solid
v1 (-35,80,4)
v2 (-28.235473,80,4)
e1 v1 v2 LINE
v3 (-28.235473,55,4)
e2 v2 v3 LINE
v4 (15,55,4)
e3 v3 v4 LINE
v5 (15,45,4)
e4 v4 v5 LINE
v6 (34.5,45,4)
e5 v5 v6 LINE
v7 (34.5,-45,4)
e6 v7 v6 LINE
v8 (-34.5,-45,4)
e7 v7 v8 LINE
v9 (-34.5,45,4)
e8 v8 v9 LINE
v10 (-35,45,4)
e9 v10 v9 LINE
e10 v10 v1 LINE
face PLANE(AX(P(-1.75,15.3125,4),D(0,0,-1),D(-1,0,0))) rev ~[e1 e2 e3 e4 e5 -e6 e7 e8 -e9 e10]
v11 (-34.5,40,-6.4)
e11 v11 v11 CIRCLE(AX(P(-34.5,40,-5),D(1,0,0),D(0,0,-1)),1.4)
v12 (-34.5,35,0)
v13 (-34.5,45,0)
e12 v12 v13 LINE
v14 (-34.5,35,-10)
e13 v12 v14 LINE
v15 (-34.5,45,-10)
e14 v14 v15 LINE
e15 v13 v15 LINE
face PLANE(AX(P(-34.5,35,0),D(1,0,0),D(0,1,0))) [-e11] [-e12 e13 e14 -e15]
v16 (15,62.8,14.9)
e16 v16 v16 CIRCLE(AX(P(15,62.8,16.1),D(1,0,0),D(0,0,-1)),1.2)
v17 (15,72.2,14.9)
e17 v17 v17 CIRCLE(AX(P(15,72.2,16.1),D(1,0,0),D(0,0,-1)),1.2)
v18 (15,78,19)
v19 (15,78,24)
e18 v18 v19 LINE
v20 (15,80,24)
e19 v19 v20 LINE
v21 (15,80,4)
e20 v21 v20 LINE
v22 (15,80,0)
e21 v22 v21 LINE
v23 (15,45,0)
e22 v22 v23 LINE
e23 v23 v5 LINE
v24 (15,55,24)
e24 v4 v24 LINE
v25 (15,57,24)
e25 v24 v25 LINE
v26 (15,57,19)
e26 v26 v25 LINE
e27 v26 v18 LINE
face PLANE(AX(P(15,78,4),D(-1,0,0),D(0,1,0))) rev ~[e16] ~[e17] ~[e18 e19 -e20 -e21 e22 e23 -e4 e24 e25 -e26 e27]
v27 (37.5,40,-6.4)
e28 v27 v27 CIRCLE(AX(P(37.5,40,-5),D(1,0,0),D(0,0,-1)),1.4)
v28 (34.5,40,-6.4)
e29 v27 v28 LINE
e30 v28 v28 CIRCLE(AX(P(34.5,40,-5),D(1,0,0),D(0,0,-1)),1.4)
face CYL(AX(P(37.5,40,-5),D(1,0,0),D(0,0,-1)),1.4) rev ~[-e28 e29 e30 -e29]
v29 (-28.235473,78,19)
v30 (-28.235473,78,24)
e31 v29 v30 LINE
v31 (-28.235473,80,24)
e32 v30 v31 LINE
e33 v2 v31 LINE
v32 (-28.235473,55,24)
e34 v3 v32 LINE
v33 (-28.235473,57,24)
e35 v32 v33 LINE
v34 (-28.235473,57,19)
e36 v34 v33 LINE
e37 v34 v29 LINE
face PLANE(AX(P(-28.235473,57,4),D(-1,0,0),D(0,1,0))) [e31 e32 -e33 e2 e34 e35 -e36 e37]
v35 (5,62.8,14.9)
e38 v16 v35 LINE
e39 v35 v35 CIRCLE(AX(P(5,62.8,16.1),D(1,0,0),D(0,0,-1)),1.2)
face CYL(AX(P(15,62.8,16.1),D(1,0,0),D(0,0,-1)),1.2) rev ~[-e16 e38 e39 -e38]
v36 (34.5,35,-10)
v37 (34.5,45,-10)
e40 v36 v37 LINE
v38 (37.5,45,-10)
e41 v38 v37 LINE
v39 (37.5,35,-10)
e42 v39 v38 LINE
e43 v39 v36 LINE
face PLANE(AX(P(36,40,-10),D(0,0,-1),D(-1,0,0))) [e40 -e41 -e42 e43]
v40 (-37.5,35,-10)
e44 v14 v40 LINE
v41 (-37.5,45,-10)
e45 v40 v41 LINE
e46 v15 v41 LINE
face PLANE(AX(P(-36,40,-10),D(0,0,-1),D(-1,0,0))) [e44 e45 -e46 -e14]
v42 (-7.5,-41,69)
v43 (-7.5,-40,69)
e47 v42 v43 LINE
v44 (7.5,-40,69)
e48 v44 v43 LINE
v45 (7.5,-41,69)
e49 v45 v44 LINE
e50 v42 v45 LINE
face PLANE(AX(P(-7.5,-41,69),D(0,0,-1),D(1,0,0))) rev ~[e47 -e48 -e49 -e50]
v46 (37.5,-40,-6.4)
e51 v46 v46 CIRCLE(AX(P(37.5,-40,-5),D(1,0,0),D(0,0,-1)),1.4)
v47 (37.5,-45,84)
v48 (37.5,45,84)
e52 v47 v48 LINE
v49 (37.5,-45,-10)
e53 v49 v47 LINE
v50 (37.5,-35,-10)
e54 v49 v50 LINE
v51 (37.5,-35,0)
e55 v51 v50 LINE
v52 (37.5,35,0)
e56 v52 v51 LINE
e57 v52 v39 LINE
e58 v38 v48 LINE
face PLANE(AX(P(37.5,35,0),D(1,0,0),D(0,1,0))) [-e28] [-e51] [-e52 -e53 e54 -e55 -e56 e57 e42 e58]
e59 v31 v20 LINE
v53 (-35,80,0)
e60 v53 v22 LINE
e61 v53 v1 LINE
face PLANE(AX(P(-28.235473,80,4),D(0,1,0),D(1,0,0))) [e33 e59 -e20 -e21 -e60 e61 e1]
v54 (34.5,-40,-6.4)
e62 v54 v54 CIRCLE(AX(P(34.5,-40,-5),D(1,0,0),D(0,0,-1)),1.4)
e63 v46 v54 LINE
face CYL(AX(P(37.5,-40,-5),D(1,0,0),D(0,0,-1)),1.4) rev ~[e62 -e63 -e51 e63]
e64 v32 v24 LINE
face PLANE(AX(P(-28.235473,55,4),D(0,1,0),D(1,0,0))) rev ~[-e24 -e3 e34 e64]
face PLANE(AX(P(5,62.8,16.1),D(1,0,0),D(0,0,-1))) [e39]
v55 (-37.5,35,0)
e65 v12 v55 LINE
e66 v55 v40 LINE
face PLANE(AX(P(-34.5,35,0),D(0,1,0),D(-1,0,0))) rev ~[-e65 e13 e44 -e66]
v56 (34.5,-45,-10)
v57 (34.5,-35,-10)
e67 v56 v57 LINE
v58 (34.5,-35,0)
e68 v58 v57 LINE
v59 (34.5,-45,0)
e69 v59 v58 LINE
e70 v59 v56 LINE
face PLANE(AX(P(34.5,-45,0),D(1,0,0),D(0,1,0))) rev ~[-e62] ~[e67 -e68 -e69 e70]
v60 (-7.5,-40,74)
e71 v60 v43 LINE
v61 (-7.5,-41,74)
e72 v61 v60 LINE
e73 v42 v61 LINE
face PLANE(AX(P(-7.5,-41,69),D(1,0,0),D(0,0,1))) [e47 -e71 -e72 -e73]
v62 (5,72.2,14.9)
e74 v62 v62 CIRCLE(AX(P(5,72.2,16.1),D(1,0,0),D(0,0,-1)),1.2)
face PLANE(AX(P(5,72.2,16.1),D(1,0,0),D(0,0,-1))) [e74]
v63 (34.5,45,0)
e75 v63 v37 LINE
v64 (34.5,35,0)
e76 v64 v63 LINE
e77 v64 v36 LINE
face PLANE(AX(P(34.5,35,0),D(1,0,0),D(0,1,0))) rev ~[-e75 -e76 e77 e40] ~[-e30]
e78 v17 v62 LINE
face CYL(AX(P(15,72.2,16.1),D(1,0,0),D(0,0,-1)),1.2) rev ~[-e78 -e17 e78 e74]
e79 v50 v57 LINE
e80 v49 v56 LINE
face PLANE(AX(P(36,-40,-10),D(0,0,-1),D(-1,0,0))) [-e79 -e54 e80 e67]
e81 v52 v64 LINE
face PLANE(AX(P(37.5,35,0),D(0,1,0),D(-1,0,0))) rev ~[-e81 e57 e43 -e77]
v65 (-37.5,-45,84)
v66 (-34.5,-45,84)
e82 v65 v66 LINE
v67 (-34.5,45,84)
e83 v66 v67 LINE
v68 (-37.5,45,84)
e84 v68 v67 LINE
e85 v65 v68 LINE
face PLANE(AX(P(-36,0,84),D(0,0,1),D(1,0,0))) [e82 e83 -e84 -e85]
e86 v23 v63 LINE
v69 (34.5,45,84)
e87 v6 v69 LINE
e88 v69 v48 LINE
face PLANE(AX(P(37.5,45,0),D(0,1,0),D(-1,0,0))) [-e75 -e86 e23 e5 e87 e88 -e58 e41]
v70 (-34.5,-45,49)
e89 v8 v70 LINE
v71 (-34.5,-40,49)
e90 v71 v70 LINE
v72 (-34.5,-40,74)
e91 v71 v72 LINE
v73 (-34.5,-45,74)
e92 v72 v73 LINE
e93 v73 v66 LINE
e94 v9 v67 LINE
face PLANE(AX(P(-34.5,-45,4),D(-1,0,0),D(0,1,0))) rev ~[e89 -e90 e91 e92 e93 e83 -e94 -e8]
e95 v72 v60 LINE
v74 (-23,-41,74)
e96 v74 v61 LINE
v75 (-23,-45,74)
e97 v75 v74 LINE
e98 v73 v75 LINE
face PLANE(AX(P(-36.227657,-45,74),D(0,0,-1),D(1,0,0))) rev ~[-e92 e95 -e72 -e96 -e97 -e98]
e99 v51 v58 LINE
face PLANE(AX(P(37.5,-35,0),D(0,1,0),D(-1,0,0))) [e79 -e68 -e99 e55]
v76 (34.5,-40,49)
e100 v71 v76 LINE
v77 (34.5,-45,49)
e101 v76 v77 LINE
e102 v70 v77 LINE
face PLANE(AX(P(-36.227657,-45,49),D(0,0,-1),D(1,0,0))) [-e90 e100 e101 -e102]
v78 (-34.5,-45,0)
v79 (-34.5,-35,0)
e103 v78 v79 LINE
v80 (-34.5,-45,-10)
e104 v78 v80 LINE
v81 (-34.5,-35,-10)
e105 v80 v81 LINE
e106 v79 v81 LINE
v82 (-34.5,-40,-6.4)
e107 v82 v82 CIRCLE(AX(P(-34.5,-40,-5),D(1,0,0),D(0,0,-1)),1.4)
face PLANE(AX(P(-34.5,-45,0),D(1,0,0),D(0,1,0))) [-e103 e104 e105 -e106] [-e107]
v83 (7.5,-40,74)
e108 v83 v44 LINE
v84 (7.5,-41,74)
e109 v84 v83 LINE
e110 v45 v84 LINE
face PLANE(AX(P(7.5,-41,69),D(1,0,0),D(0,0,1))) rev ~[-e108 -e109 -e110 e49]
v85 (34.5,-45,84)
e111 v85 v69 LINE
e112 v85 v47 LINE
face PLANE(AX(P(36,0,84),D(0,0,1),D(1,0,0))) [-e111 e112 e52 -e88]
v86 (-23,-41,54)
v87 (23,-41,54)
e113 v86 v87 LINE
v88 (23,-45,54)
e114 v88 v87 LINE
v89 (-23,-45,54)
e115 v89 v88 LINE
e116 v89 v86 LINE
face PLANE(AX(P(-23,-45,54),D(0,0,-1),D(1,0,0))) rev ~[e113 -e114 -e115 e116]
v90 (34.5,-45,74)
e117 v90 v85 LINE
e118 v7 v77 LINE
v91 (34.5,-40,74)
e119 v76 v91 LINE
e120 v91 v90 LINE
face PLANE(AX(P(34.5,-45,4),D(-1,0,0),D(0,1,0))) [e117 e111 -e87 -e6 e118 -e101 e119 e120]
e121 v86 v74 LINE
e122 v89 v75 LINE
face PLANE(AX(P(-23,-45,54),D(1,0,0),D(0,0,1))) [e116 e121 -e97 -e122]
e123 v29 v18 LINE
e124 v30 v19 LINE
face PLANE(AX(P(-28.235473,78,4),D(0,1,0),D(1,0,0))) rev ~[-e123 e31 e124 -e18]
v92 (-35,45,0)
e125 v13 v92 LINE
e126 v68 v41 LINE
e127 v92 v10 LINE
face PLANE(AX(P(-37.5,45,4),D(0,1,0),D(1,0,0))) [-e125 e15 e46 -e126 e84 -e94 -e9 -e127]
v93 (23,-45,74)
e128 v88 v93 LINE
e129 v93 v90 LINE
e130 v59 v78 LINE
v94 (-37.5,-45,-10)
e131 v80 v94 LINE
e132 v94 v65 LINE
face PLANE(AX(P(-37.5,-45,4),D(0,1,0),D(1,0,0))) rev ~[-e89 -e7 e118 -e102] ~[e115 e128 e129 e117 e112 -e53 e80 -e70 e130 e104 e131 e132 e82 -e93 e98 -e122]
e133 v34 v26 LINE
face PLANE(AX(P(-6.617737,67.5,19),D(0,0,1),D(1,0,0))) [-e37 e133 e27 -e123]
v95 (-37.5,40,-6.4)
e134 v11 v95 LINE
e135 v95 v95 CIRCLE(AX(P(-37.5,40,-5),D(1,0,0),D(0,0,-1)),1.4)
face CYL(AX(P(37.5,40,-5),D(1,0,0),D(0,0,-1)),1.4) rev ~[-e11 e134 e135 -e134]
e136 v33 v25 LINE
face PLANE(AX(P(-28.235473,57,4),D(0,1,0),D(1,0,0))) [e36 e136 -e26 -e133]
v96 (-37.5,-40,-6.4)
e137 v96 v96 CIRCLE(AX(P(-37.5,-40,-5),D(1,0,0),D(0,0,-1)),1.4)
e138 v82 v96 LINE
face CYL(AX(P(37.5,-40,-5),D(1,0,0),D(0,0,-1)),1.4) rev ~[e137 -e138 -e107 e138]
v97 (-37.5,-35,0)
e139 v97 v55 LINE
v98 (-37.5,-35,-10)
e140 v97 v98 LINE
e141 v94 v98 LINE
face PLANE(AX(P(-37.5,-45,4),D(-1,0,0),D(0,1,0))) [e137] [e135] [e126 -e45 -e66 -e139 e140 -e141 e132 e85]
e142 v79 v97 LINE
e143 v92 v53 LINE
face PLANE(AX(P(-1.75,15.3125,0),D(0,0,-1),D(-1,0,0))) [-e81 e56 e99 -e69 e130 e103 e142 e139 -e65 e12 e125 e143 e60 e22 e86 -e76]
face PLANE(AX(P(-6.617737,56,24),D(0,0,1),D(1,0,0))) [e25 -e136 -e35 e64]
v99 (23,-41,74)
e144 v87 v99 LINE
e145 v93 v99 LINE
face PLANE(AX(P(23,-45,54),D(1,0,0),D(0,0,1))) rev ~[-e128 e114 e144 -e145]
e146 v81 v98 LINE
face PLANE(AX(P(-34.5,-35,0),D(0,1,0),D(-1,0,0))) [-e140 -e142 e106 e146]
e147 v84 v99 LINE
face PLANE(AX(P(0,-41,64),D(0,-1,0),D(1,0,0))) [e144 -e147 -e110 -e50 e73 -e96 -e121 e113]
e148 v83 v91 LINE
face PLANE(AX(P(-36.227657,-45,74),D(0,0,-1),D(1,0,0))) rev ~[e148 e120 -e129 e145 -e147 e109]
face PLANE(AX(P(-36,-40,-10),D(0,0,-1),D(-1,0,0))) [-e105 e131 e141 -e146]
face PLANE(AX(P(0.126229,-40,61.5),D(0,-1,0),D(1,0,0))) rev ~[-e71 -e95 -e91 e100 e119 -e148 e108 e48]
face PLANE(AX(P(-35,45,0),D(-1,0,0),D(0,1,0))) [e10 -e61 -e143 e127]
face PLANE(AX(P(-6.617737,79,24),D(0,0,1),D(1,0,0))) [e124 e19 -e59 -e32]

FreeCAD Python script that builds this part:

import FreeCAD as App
import Part
import Sketcher

V = App.Vector
Q = App.Units.Quantity

doc = App.newDocument("Part")
params = doc.addObject("Spreadsheet::Sheet", "Params")
for row, (alias, value) in enumerate([
    ("sketch1_width", "75 mm"),
    ("sketch1_width2", "50 mm"),
    ("sketch1_height", "90 mm"),
    ("sketch1_height2", "35 mm"),
    ("sketch1_width3", "2.5 mm"),
    ("pad1_length", "4 mm"),
    ("sketch2_height", "2 mm"),
    ("pad2_length", "20 mm"),
    ("sketch3_height", "21 mm"),
    ("pad3_length", "15 mm"),
    ("sketch4_width", "3 mm"),
    ("sketch4_height", "10 mm"),
    ("pad4_length", "10 mm"),
    ("sketch5_diameter", "2.8 mm"),
    ("pocket1_length", "83 mm"),
    ("sketch6_width", "3 mm"),
    ("sketch6_height", "90 mm"),
    ("pad5_length", "80 mm"),
    ("sketch7_height", "25 mm"),
    ("pad6_length", "5 mm"),
    ("sketch8_width", "46 mm"),
    ("sketch8_height", "20 mm"),
    ("pocket2_length", "4 mm"),
    ("sketch9_width", "15 mm"),
    ("sketch9_height", "5 mm"),
    ("sketch10_diameter", "2.4 mm"),
    ("pocket4_length", "10 mm"),
], start=1):
    params.set(f"A{row}", alias)
    params.set(f"B{row}", "=" + value)
    params.setAlias(f"B{row}", alias)

body = doc.addObject("PartDesign::Body", "Body")

# Sketch on XY plane
sketch1 = doc.addObject("Sketcher::SketchObject", "Sketch")
body.addObject(sketch1)
sketch1.AttachmentSupport = (doc.XY_Plane, [""])
sketch1.MapMode = "FlatFace"
sketch1.addGeometry(Part.LineSegment(V(-35, 45, 0), V(-37.5, 45, 0)), False)
sketch1.addGeometry(Part.LineSegment(V(-37.5, 45, 0), V(-37.5, -45, 0)), False)
sketch1.addGeometry(Part.LineSegment(V(-37.5, -45, 0), V(37.5, -45, 0)), False)
sketch1.addGeometry(Part.LineSegment(V(37.5, -45, 0), V(37.5, 45, 0)), False)
sketch1.addGeometry(Part.LineSegment(V(37.5, 45, 0), V(15, 45, 0)), False)
sketch1.addGeometry(Part.LineSegment(V(15, 45, 0), V(15, 80, 0)), False)
sketch1.addGeometry(Part.LineSegment(V(15, 80, 0), V(-35, 80, 0)), False)
sketch1.addGeometry(Part.LineSegment(V(-35, 80, 0), V(-35, 45, 0)), False)
sketch1.addConstraint(Sketcher.Constraint("Coincident", 0, 2, 1, 1))
sketch1.addConstraint(Sketcher.Constraint("Coincident", 1, 2, 2, 1))
sketch1.addConstraint(Sketcher.Constraint("Coincident", 2, 2, 3, 1))
sketch1.addConstraint(Sketcher.Constraint("Coincident", 3, 2, 4, 1))
sketch1.addConstraint(Sketcher.Constraint("Coincident", 4, 2, 5, 1))
sketch1.addConstraint(Sketcher.Constraint("Coincident", 5, 2, 6, 1))
sketch1.addConstraint(Sketcher.Constraint("Coincident", 6, 2, 7, 1))
sketch1.addConstraint(Sketcher.Constraint("Coincident", 7, 2, 0, 1))
sketch1.addConstraint(Sketcher.Constraint("Horizontal", 0))
sketch1.addConstraint(Sketcher.Constraint("Vertical", 1))
sketch1.addConstraint(Sketcher.Constraint("Horizontal", 2))
sketch1.addConstraint(Sketcher.Constraint("Vertical", 3))
sketch1.addConstraint(Sketcher.Constraint("Horizontal", 4))
sketch1.addConstraint(Sketcher.Constraint("Vertical", 5))
sketch1.addConstraint(Sketcher.Constraint("Horizontal", 6))
sketch1.addConstraint(Sketcher.Constraint("Vertical", 7))
sketch1.addConstraint(Sketcher.Constraint("Symmetric", 0, 2, 2, 2, -1, 1))
sketch1.addConstraint(Sketcher.Constraint("Horizontal", 0, 2, 3, 2))
sketch1.addConstraint(Sketcher.Constraint("DistanceX", 2, 1, 2, 2, Q("75 mm")))
sketch1.addConstraint(Sketcher.Constraint("DistanceX", 6, 2, 6, 1, Q("50 mm")))
sketch1.addConstraint(Sketcher.Constraint("DistanceY", 1, 2, 1, 1, Q("90 mm")))
sketch1.addConstraint(Sketcher.Constraint("DistanceY", 5, 1, 5, 2, Q("35 mm")))
sketch1.addConstraint(Sketcher.Constraint("DistanceX", 0, 2, 0, 1, Q("2.5 mm")))
sketch1.setExpression("Constraints[18]", "Params.sketch1_width")
sketch1.setExpression("Constraints[19]", "Params.sketch1_width2")
sketch1.setExpression("Constraints[20]", "Params.sketch1_height")
sketch1.setExpression("Constraints[21]", "Params.sketch1_height2")
sketch1.setExpression("Constraints[22]", "Params.sketch1_width3")
pad1 = doc.addObject("PartDesign::Pad", "Pad")
body.addObject(pad1)
pad1.Profile = sketch1
pad1.setExpression("Length", "Params.pad1_length")

# Sketch on XY plane
sketch2 = doc.addObject("Sketcher::SketchObject", "Sketch001")
body.addObject(sketch2)
sketch2.AttachmentSupport = (doc.XY_Plane, [""])
sketch2.MapMode = "FlatFace"
sketch2.AttachmentOffset = App.Placement(V(0, 0, 4), App.Rotation())
sketch2.addGeometry(Part.LineSegment(V(-28.235473, 57, 0), V(-28.235473, 55, 0)), False)
sketch2.addGeometry(Part.LineSegment(V(-28.235473, 55, 0), V(15, 55, 0)), False)
sketch2.addGeometry(Part.LineSegment(V(15, 55, 0), V(15, 57, 0)), False)
sketch2.addGeometry(Part.LineSegment(V(15, 57, 0), V(-28.235473, 57, 0)), False)
sketch2.addGeometry(Part.LineSegment(V(-28.235473, 80, 0), V(-28.235473, 78, 0)), False)
sketch2.addGeometry(Part.LineSegment(V(-28.235473, 78, 0), V(15, 78, 0)), False)
sketch2.addGeometry(Part.LineSegment(V(15, 78, 0), V(15, 80, 0)), False)
sketch2.addGeometry(Part.LineSegment(V(15, 80, 0), V(-28.235473, 80, 0)), False)
sketch2.addConstraint(Sketcher.Constraint("Coincident", 0, 2, 1, 1))
sketch2.addConstraint(Sketcher.Constraint("Coincident", 1, 2, 2, 1))
sketch2.addConstraint(Sketcher.Constraint("Coincident", 2, 2, 3, 1))
sketch2.addConstraint(Sketcher.Constraint("Coincident", 3, 2, 0, 1))
sketch2.addConstraint(Sketcher.Constraint("Coincident", 4, 2, 5, 1))
sketch2.addConstraint(Sketcher.Constraint("Coincident", 5, 2, 6, 1))
sketch2.addConstraint(Sketcher.Constraint("Coincident", 6, 2, 7, 1))
sketch2.addConstraint(Sketcher.Constraint("Coincident", 7, 2, 4, 1))
sketch2.addConstraint(Sketcher.Constraint("Vertical", 0))
sketch2.addConstraint(Sketcher.Constraint("Horizontal", 1))
sketch2.addConstraint(Sketcher.Constraint("Vertical", 2))
sketch2.addConstraint(Sketcher.Constraint("Horizontal", 3))
sketch2.addConstraint(Sketcher.Constraint("Vertical", 4))
sketch2.addConstraint(Sketcher.Constraint("Horizontal", 5))
sketch2.addConstraint(Sketcher.Constraint("Vertical", 6))
sketch2.addConstraint(Sketcher.Constraint("Horizontal", 7))
sketch2.addConstraint(Sketcher.Constraint("Vertical", 3, 2, 4, 2))
sketch2.addConstraint(Sketcher.Constraint("Vertical", 2, 2, 5, 2))
sketch2.addConstraint(Sketcher.Constraint("Equal", 2, 4))
sketch2.addConstraint(Sketcher.Constraint("DistanceY", 0, 2, 0, 1, Q("2 mm")))
sketch2.addConstraint(Sketcher.Constraint("DistanceY", -1, 1, 0, 2, Q("55 mm")))
sketch2.addConstraint(Sketcher.Constraint("DistanceX", -1, 1, 1, 2, Q("15 mm")))
sketch2.addConstraint(Sketcher.Constraint("DistanceY", -1, 1, 4, 2, Q("78 mm")))
sketch2.addConstraint(Sketcher.Constraint("DistanceX", 1, 1, 1, 2, Q("43.235473 mm")))
sketch2.setExpression("Constraints[19]", "Params.sketch2_height")
pad2 = doc.addObject("PartDesign::Pad", "Pad001")
body.addObject(pad2)
pad2.Profile = sketch2
pad2.setExpression("Length", "Params.pad2_length")

# Sketch on XY plane
sketch3 = doc.addObject("Sketcher::SketchObject", "Sketch002")
body.addObject(sketch3)
sketch3.AttachmentSupport = (doc.XY_Plane, [""])
sketch3.MapMode = "FlatFace"
sketch3.AttachmentOffset = App.Placement(V(0, 0, 4), App.Rotation())
sketch3.addGeometry(Part.LineSegment(V(-28.235473, 78, 0), V(-28.235473, 57, 0)), False)
sketch3.addGeometry(Part.LineSegment(V(-28.235473, 57, 0), V(15, 57, 0)), False)
sketch3.addGeometry(Part.LineSegment(V(15, 57, 0), V(15, 78, 0)), False)
sketch3.addGeometry(Part.LineSegment(V(15, 78, 0), V(-28.235473, 78, 0)), False)
sketch3.addConstraint(Sketcher.Constraint("Coincident", 0, 2, 1, 1))
sketch3.addConstraint(Sketcher.Constraint("Coincident", 1, 2, 2, 1))
sketch3.addConstraint(Sketcher.Constraint("Coincident", 2, 2, 3, 1))
sketch3.addConstraint(Sketcher.Constraint("Coincident", 3, 2, 0, 1))
sketch3.addConstraint(Sketcher.Constraint("Vertical", 0))
sketch3.addConstraint(Sketcher.Constraint("Horizontal", 1))
sketch3.addConstraint(Sketcher.Constraint("Vertical", 2))
sketch3.addConstraint(Sketcher.Constraint("Horizontal", 3))
sketch3.addConstraint(Sketcher.Constraint("DistanceY", 0, 2, 0, 1, Q("21 mm")))
sketch3.addConstraint(Sketcher.Constraint("DistanceY", -1, 1, 0, 2, Q("57 mm")))
sketch3.addConstraint(Sketcher.Constraint("DistanceX", -1, 1, 1, 2, Q("15 mm")))
sketch3.addConstraint(Sketcher.Constraint("DistanceX", 1, 1, 1, 2, Q("43.235473 mm")))
sketch3.setExpression("Constraints[8]", "Params.sketch3_height")
pad3 = doc.addObject("PartDesign::Pad", "Pad002")
body.addObject(pad3)
pad3.Profile = sketch3
pad3.setExpression("Length", "Params.pad3_length")

# Sketch on XY plane
sketch4 = doc.addObject("Sketcher::SketchObject", "Sketch003")
body.addObject(sketch4)
sketch4.AttachmentSupport = (doc.XY_Plane, [""])
sketch4.MapMode = "FlatFace"
sketch4.addGeometry(Part.LineSegment(V(37.5, 45, 0), V(37.5, 35, 0)), False)
sketch4.addGeometry(Part.LineSegment(V(37.5, 35, 0), V(34.5, 35, 0)), False)
sketch4.addGeometry(Part.LineSegment(V(34.5, 35, 0), V(34.5, 45, 0)), False)
sketch4.addGeometry(Part.LineSegment(V(34.5, 45, 0), V(37.5, 45, 0)), False)
sketch4.addGeometry(Part.LineSegment(V(-34.5, 45, 0), V(-34.5, 35, 0)), False)
sketch4.addGeometry(Part.LineSegment(V(-34.5, 35, 0), V(-37.5, 35, 0)), False)
sketch4.addGeometry(Part.LineSegment(V(-37.5, 35, 0), V(-37.5, 45, 0)), False)
sketch4.addGeometry(Part.LineSegment(V(-37.5, 45, 0), V(-34.5, 45, 0)), False)
sketch4.addGeometry(Part.LineSegment(V(-34.5, -35, 0), V(-34.5, -45, 0)), False)
sketch4.addGeometry(Part.LineSegment(V(-34.5, -45, 0), V(-37.5, -45, 0)), False)
sketch4.addGeometry(Part.LineSegment(V(-37.5, -45, 0), V(-37.5, -35, 0)), False)
sketch4.addGeometry(Part.LineSegment(V(-37.5, -35, 0), V(-34.5, -35, 0)), False)
sketch4.addGeometry(Part.LineSegment(V(37.5, -35, 0), V(37.5, -45, 0)), False)
sketch4.addGeometry(Part.LineSegment(V(37.5, -45, 0), V(34.5, -45, 0)), False)
sketch4.addGeometry(Part.LineSegment(V(34.5, -45, 0), V(34.5, -35, 0)), False)
sketch4.addGeometry(Part.LineSegment(V(34.5, -35, 0), V(37.5, -35, 0)), False)
sketch4.addConstraint(Sketcher.Constraint("Coincident", 0, 2, 1, 1))
sketch4.addConstraint(Sketcher.Constraint("Coincident", 1, 2, 2, 1))
sketch4.addConstraint(Sketcher.Constraint("Coincident", 2, 2, 3, 1))
sketch4.addConstraint(Sketcher.Constraint("Coincident", 3, 2, 0, 1))
sketch4.addConstraint(Sketcher.Constraint("Coincident", 4, 2, 5, 1))
sketch4.addConstraint(Sketcher.Constraint("Coincident", 5, 2, 6, 1))
sketch4.addConstraint(Sketcher.Constraint("Coincident", 6, 2, 7, 1))
sketch4.addConstraint(Sketcher.Constraint("Coincident", 7, 2, 4, 1))
sketch4.addConstraint(Sketcher.Constraint("Coincident", 8, 2, 9, 1))
sketch4.addConstraint(Sketcher.Constraint("Coincident", 9, 2, 10, 1))
sketch4.addConstraint(Sketcher.Constraint("Coincident", 10, 2, 11, 1))
sketch4.addConstraint(Sketcher.Constraint("Coincident", 11, 2, 8, 1))
sketch4.addConstraint(Sketcher.Constraint("Coincident", 12, 2, 13, 1))
sketch4.addConstraint(Sketcher.Constraint("Coincident", 13, 2, 14, 1))
sketch4.addConstraint(Sketcher.Constraint("Coincident", 14, 2, 15, 1))
sketch4.addConstraint(Sketcher.Constraint("Coincident", 15, 2, 12, 1))
sketch4.addConstraint(Sketcher.Constraint("Vertical", 0))
sketch4.addConstraint(Sketcher.Constraint("Horizontal", 1))
sketch4.addConstraint(Sketcher.Constraint("Vertical", 2))
sketch4.addConstraint(Sketcher.Constraint("Horizontal", 3))
sketch4.addConstraint(Sketcher.Constraint("Vertical", 4))
sketch4.addConstraint(Sketcher.Constraint("Horizontal", 5))
sketch4.addConstraint(Sketcher.Constraint("Vertical", 6))
sketch4.addConstraint(Sketcher.Constraint("Horizontal", 7))
sketch4.addConstraint(Sketcher.Constraint("Vertical", 8))
sketch4.addConstraint(Sketcher.Constraint("Horizontal", 9))
sketch4.addConstraint(Sketcher.Constraint("Vertical", 10))
sketch4.addConstraint(Sketcher.Constraint("Horizontal", 11))
sketch4.addConstraint(Sketcher.Constraint("Vertical", 12))
sketch4.addConstraint(Sketcher.Constraint("Horizontal", 13))
sketch4.addConstraint(Sketcher.Constraint("Vertical", 14))
sketch4.addConstraint(Sketcher.Constraint("Horizontal", 15))
sketch4.addConstraint(Sketcher.Constraint("Symmetric", 2, 2, 8, 2, -1, 1))
sketch4.addConstraint(Sketcher.Constraint("Symmetric", 0, 2, 10, 2, -1, 1))
sketch4.addConstraint(Sketcher.Constraint("Symmetric", 6, 2, 12, 2, -1, 1))
sketch4.addConstraint(Sketcher.Constraint("Symmetric", 4, 2, 14, 2, -1, 1))
sketch4.addConstraint(Sketcher.Constraint("Symmetric", 1, 2, 4, 2, -2))
sketch4.addConstraint(Sketcher.Constraint("Symmetric", 3, 2, 6, 2, -2))
sketch4.addConstraint(Sketcher.Constraint("DistanceX", 1, 2, 1, 1, Q("3 mm")))
sketch4.addConstraint(Sketcher.Constraint("DistanceY", 0, 2, 0, 1, Q("10 mm")))
sketch4.addConstraint(Sketcher.Constraint("DistanceY", -1, 1, 0, 2, Q("35 mm")))
sketch4.addConstraint(Sketcher.Constraint("DistanceX", 4, 2, 1, 2, Q("69 mm")))
sketch4.setExpression("Constraints[38]", "Params.sketch4_width")
sketch4.setExpression("Constraints[39]", "Params.sketch4_height")
pad4 = doc.addObject("PartDesign::Pad", "Pad003")
body.addObject(pad4)
pad4.Profile = sketch4
pad4.setExpression("Length", "Params.pad4_length")
pad4.Reversed = True

# Sketch on YZ plane
sketch5 = doc.addObject("Sketcher::SketchObject", "Sketch004")
body.addObject(sketch5)
sketch5.AttachmentSupport = (doc.YZ_Plane, [""])
sketch5.MapMode = "FlatFace"
sketch5.AttachmentOffset = App.Placement(V(0, 0, 37.5), App.Rotation())
sketch5.addGeometry(Part.Circle(V(40, -5, 0), V(0, 0, 1), 1.4), False)
sketch5.addGeometry(Part.Circle(V(-40, -5, 0), V(0, 0, 1), 1.4), False)
sketch5.addConstraint(Sketcher.Constraint("Equal", 0, 1))
sketch5.addConstraint(Sketcher.Constraint("Symmetric", 0, 3, 1, 3, -2))
sketch5.addConstraint(Sketcher.Constraint("Diameter", 0, Q("2.8 mm")))
sketch5.addConstraint(Sketcher.Constraint("DistanceX", -1, 1, 0, 3, Q("40 mm")))
sketch5.addConstraint(Sketcher.Constraint("DistanceY", 0, 3, -1, 1, Q("5 mm")))
sketch5.setExpression("Constraints[2]", "Params.sketch5_diameter")
pocket1 = doc.addObject("PartDesign::Pocket", "Pocket")
body.addObject(pocket1)
pocket1.Profile = sketch5
pocket1.setExpression("Length", "Params.pocket1_length")

# Sketch on XY plane
sketch6 = doc.addObject("Sketcher::SketchObject", "Sketch005")
body.addObject(sketch6)
sketch6.AttachmentSupport = (doc.XY_Plane, [""])
sketch6.MapMode = "FlatFace"
sketch6.AttachmentOffset = App.Placement(V(0, 0, 4), App.Rotation())
sketch6.addGeometry(Part.LineSegment(V(-37.5, 45, 0), V(-37.5, -45, 0)), False)
sketch6.addGeometry(Part.LineSegment(V(-37.5, -45, 0), V(-34.5, -45, 0)), False)
sketch6.addGeometry(Part.LineSegment(V(-34.5, -45, 0), V(-34.5, 45, 0)), False)
sketch6.addGeometry(Part.LineSegment(V(-34.5, 45, 0), V(-37.5, 45, 0)), False)
sketch6.addGeometry(Part.LineSegment(V(34.5, 45, 0), V(34.5, -45, 0)), False)
sketch6.addGeometry(Part.LineSegment(V(34.5, -45, 0), V(37.5, -45, 0)), False)
sketch6.addGeometry(Part.LineSegment(V(37.5, -45, 0), V(37.5, 45, 0)), False)
sketch6.addGeometry(Part.LineSegment(V(37.5, 45, 0), V(34.5, 45, 0)), False)
sketch6.addConstraint(Sketcher.Constraint("Coincident", 0, 2, 1, 1))
sketch6.addConstraint(Sketcher.Constraint("Coincident", 1, 2, 2, 1))
sketch6.addConstraint(Sketcher.Constraint("Coincident", 2, 2, 3, 1))
sketch6.addConstraint(Sketcher.Constraint("Coincident", 3, 2, 0, 1))
sketch6.addConstraint(Sketcher.Constraint("Coincident", 4, 2, 5, 1))
sketch6.addConstraint(Sketcher.Constraint("Coincident", 5, 2, 6, 1))
sketch6.addConstraint(Sketcher.Constraint("Coincident", 6, 2, 7, 1))
sketch6.addConstraint(Sketcher.Constraint("Coincident", 7, 2, 4, 1))
sketch6.addConstraint(Sketcher.Constraint("Vertical", 0))
sketch6.addConstraint(Sketcher.Constraint("Horizontal", 1))
sketch6.addConstraint(Sketcher.Constraint("Vertical", 2))
sketch6.addConstraint(Sketcher.Constraint("Horizontal", 3))
sketch6.addConstraint(Sketcher.Constraint("Vertical", 4))
sketch6.addConstraint(Sketcher.Constraint("Horizontal", 5))
sketch6.addConstraint(Sketcher.Constraint("Vertical", 6))
sketch6.addConstraint(Sketcher.Constraint("Horizontal", 7))
sketch6.addConstraint(Sketcher.Constraint("Symmetric", 2, 2, 4, 2, -1, 1))
sketch6.addConstraint(Sketcher.Constraint("Symmetric", 0, 2, 6, 2, -1, 1))
sketch6.addConstraint(Sketcher.Constraint("Horizontal", 1, 2, 4, 2))
sketch6.addConstraint(Sketcher.Constraint("DistanceX", 1, 1, 1, 2, Q("3 mm")))
sketch6.addConstraint(Sketcher.Constraint("DistanceY", 0, 2, 0, 1, Q("90 mm")))
sketch6.addConstraint(Sketcher.Constraint("DistanceX", 1, 2, 4, 2, Q("69 mm")))
sketch6.setExpression("Constraints[19]", "Params.sketch6_width")
sketch6.setExpression("Constraints[20]", "Params.sketch6_height")
pad5 = doc.addObject("PartDesign::Pad", "Pad004")
body.addObject(pad5)
pad5.Profile = sketch6
pad5.setExpression("Length", "Params.pad5_length")

# Sketch on XZ plane
sketch7 = doc.addObject("Sketcher::SketchObject", "Sketch006")
body.addObject(sketch7)
sketch7.AttachmentSupport = (doc.XZ_Plane, [""])
sketch7.MapMode = "FlatFace"
sketch7.AttachmentOffset = App.Placement(V(0, 0, 45), App.Rotation())
sketch7.addGeometry(Part.LineSegment(V(-36.227657, 74, 0), V(-36.227657, 49, 0)), False)
sketch7.addGeometry(Part.LineSegment(V(-36.227657, 49, 0), V(36.480114, 49, 0)), False)
sketch7.addGeometry(Part.LineSegment(V(36.480114, 49, 0), V(36.480114, 74, 0)), False)
sketch7.addGeometry(Part.LineSegment(V(36.480114, 74, 0), V(-36.227657, 74, 0)), False)
sketch7.addConstraint(Sketcher.Constraint("Coincident", 0, 2, 1, 1))
sketch7.addConstraint(Sketcher.Constraint("Coincident", 1, 2, 2, 1))
sketch7.addConstraint(Sketcher.Constraint("Coincident", 2, 2, 3, 1))
sketch7.addConstraint(Sketcher.Constraint("Coincident", 3, 2, 0, 1))
sketch7.addConstraint(Sketcher.Constraint("Vertical", 0))
sketch7.addConstraint(Sketcher.Constraint("Horizontal", 1))
sketch7.addConstraint(Sketcher.Constraint("Vertical", 2))
sketch7.addConstraint(Sketcher.Constraint("Horizontal", 3))
sketch7.addConstraint(Sketcher.Constraint("DistanceY", 0, 2, 0, 1, Q("25 mm")))
sketch7.addConstraint(Sketcher.Constraint("DistanceY", -1, 1, 0, 2, Q("49 mm")))
sketch7.addConstraint(Sketcher.Constraint("DistanceX", 1, 1, 1, 2, Q("72.707771 mm")))
sketch7.addConstraint(Sketcher.Constraint("DistanceX", 0, 2, -1, 1, Q("36.227657 mm")))
sketch7.setExpression("Constraints[8]", "Params.sketch7_height")
pad6 = doc.addObject("PartDesign::Pad", "Pad005")
body.addObject(pad6)
pad6.Profile = sketch7
pad6.setExpression("Length", "Params.pad6_length")
pad6.Reversed = True

# Sketch on XZ plane
sketch8 = doc.addObject("Sketcher::SketchObject", "Sketch007")
body.addObject(sketch8)
sketch8.AttachmentSupport = (doc.XZ_Plane, [""])
sketch8.MapMode = "FlatFace"
sketch8.AttachmentOffset = App.Placement(V(0, 0, 45), App.Rotation())
sketch8.addGeometry(Part.LineSegment(V(-23, 74, 0), V(-23, 54, 0)), False)
sketch8.addGeometry(Part.LineSegment(V(-23, 54, 0), V(23, 54, 0)), False)
sketch8.addGeometry(Part.LineSegment(V(23, 54, 0), V(23, 74, 0)), False)
sketch8.addGeometry(Part.LineSegment(V(23, 74, 0), V(-23, 74, 0)), False)
sketch8.addConstraint(Sketcher.Constraint("Coincident", 0, 2, 1, 1))
sketch8.addConstraint(Sketcher.Constraint("Coincident", 1, 2, 2, 1))
sketch8.addConstraint(Sketcher.Constraint("Coincident", 2, 2, 3, 1))
sketch8.addConstraint(Sketcher.Constraint("Coincident", 3, 2, 0, 1))
sketch8.addConstraint(Sketcher.Constraint("Vertical", 0))
sketch8.addConstraint(Sketcher.Constraint("Horizontal", 1))
sketch8.addConstraint(Sketcher.Constraint("Vertical", 2))
sketch8.addConstraint(Sketcher.Constraint("Horizontal", 3))
sketch8.addConstraint(Sketcher.Constraint("DistanceX", 1, 1, 1, 2, Q("46 mm")))
sketch8.addConstraint(Sketcher.Constraint("DistanceY", 0, 2, 0, 1, Q("20 mm")))
sketch8.addConstraint(Sketcher.Constraint("DistanceX", 0, 2, -1, 1, Q("23 mm")))
sketch8.addConstraint(Sketcher.Constraint("DistanceY", -1, 1, 0, 2, Q("54 mm")))
sketch8.setExpression("Constraints[8]", "Params.sketch8_width")
sketch8.setExpression("Constraints[9]", "Params.sketch8_height")
pocket2 = doc.addObject("PartDesign::Pocket", "Pocket001")
body.addObject(pocket2)
pocket2.Profile = sketch8
pocket2.setExpression("Length", "Params.pocket2_length")

# Sketch on XZ plane
sketch9 = doc.addObject("Sketcher::SketchObject", "Sketch008")
body.addObject(sketch9)
sketch9.AttachmentSupport = (doc.XZ_Plane, [""])
sketch9.MapMode = "FlatFace"
sketch9.AttachmentOffset = App.Placement(V(0, 0, 41), App.Rotation())
sketch9.addGeometry(Part.LineSegment(V(-7.5, 74, 0), V(-7.5, 69, 0)), False)
sketch9.addGeometry(Part.LineSegment(V(-7.5, 69, 0), V(7.5, 69, 0)), False)
sketch9.addGeometry(Part.LineSegment(V(7.5, 69, 0), V(7.5, 74, 0)), False)
sketch9.addGeometry(Part.LineSegment(V(7.5, 74, 0), V(-7.5, 74, 0)), False)
sketch9.addConstraint(Sketcher.Constraint("Coincident", 0, 2, 1, 1))
sketch9.addConstraint(Sketcher.Constraint("Coincident", 1, 2, 2, 1))
sketch9.addConstraint(Sketcher.Constraint("Coincident", 2, 2, 3, 1))
sketch9.addConstraint(Sketcher.Constraint("Coincident", 3, 2, 0, 1))
sketch9.addConstraint(Sketcher.Constraint("Vertical", 0))
sketch9.addConstraint(Sketcher.Constraint("Horizontal", 1))
sketch9.addConstraint(Sketcher.Constraint("Vertical", 2))
sketch9.addConstraint(Sketcher.Constraint("Horizontal", 3))
sketch9.addConstraint(Sketcher.Constraint("DistanceX", 1, 1, 1, 2, Q("15 mm")))
sketch9.addConstraint(Sketcher.Constraint("DistanceY", 0, 2, 0, 1, Q("5 mm")))
sketch9.addConstraint(Sketcher.Constraint("DistanceY", -1, 1, 0, 2, Q("69 mm")))
sketch9.addConstraint(Sketcher.Constraint("DistanceX", 0, 2, -1, 1, Q("7.5 mm")))
sketch9.setExpression("Constraints[8]", "Params.sketch9_width")
sketch9.setExpression("Constraints[9]", "Params.sketch9_height")
pocket3 = doc.addObject("PartDesign::Pocket", "Pocket002")
body.addObject(pocket3)
pocket3.Profile = sketch9
pocket3.Type = "UpToFirst"

# Sketch on YZ plane
sketch10 = doc.addObject("Sketcher::SketchObject", "Sketch009")
body.addObject(sketch10)
sketch10.AttachmentSupport = (doc.YZ_Plane, [""])
sketch10.MapMode = "FlatFace"
sketch10.AttachmentOffset = App.Placement(V(0, 0, 15), App.Rotation())
sketch10.addGeometry(Part.Circle(V(72.2, 16.1, 0), V(0, 0, 1), 1.2), False)
sketch10.addGeometry(Part.Circle(V(62.8, 16.1, 0), V(0, 0, 1), 1.2), False)
sketch10.addConstraint(Sketcher.Constraint("Equal", 0, 1))
sketch10.addConstraint(Sketcher.Constraint("Horizontal", 0, 3, 1, 3))
sketch10.addConstraint(Sketcher.Constraint("Diameter", 0, Q("2.4 mm")))
sketch10.addConstraint(Sketcher.Constraint("DistanceX", -1, 1, 0, 3, Q("72.2 mm")))
sketch10.addConstraint(Sketcher.Constraint("DistanceY", -1, 1, 0, 3, Q("16.1 mm")))
sketch10.addConstraint(Sketcher.Constraint("DistanceX", -1, 1, 1, 3, Q("62.8 mm")))
sketch10.setExpression("Constraints[2]", "Params.sketch10_diameter")
pocket4 = doc.addObject("PartDesign::Pocket", "Pocket003")
body.addObject(pocket4)
pocket4.Profile = sketch10
pocket4.setExpression("Length", "Params.pocket4_length")

doc.recompute()
